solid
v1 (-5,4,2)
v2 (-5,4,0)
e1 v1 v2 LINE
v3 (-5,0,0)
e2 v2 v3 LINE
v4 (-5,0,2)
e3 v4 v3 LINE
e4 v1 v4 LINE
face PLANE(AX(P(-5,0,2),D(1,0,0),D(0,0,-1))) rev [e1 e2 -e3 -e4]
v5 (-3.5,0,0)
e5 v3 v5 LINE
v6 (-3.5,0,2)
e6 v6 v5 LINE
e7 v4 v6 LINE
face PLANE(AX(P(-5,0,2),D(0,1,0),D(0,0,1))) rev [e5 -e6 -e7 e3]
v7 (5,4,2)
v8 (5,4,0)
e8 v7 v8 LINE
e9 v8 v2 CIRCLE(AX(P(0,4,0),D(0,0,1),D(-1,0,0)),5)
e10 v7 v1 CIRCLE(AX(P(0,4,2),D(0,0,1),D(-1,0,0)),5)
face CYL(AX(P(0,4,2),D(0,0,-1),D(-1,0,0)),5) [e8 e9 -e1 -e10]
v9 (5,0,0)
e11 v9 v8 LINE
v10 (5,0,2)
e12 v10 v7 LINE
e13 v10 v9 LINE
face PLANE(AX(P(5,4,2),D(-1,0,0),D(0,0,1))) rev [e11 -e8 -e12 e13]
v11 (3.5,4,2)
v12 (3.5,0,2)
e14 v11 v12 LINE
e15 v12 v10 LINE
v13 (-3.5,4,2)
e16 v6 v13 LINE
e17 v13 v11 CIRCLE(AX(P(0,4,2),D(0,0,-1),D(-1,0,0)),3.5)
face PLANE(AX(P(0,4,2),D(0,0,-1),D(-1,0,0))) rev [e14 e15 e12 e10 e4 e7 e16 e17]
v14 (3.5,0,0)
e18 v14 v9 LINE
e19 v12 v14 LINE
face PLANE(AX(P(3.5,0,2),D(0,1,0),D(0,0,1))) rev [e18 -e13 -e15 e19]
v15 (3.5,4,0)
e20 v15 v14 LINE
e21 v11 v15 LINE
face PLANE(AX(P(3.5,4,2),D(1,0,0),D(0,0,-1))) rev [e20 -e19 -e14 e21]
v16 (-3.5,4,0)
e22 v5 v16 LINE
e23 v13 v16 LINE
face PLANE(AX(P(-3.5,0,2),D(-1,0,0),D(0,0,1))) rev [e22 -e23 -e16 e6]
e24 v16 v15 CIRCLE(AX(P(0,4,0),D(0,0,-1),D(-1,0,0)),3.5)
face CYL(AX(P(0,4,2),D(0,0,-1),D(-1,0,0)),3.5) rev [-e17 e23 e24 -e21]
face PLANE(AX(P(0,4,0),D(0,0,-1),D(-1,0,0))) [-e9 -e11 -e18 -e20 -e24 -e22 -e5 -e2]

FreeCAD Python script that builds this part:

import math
import FreeCAD as App
import Part
import Sketcher
from FreeCAD import Vector

doc = App.newDocument("Part")
body = doc.addObject("PartDesign::Body", "Body")

sketch1 = body.newObject("Sketcher::SketchObject", "Sketch")
sketch1.AttachmentSupport = (doc.getObject("XY_Plane"), [""])
sketch1.MapMode = "FlatFace"
sketch1.addGeometry([
    Part.LineSegment(Vector(-5, 4, 0), Vector(-5, 0, 0)),
    Part.LineSegment(Vector(-5, 0, 0), Vector(-3.5, 0, 0)),
    Part.LineSegment(Vector(-3.5, 0, 0), Vector(-3.5, 4, 0)),
    Part.ArcOfCircle(Part.Circle(Vector(0, 4, 0), Vector(0, 0, 1), 3.5), math.radians(0), math.radians(180)),
    Part.LineSegment(Vector(3.5, 4, 0), Vector(3.5, 0, 0)),
    Part.LineSegment(Vector(3.5, 0, 0), Vector(5, 0, 0)),
    Part.LineSegment(Vector(5, 0, 0), Vector(5, 4, 0)),
    Part.ArcOfCircle(Part.Circle(Vector(0, 4, 0), Vector(0, 0, 1), 5), math.radians(0), math.radians(180)),
], False)
sketch1.addConstraint([
    Sketcher.Constraint("Coincident", 0, 2, 1, 1),
    Sketcher.Constraint("Coincident", 1, 2, 2, 1),
    Sketcher.Constraint("Tangent", 2, 2, 3, 2),
    Sketcher.Constraint("Tangent", 3, 1, 4, 1),
    Sketcher.Constraint("Coincident", 4, 2, 5, 1),
    Sketcher.Constraint("Coincident", 5, 2, 6, 1),
    Sketcher.Constraint("Tangent", 6, 2, 7, 1),
    Sketcher.Constraint("Tangent", 7, 2, 0, 1),
    Sketcher.Constraint("Vertical", 0),
    Sketcher.Constraint("Horizontal", 1),
    Sketcher.Constraint("Vertical", 2),
    Sketcher.Constraint("Vertical", 4),
    Sketcher.Constraint("Horizontal", 5),
    Sketcher.Constraint("Vertical", 6),
    Sketcher.Constraint("Coincident", 7, 3, 3, 3),
    Sketcher.Constraint("Symmetric", 1, 2, 4, 2, -1, 1),
    Sketcher.Constraint("PointOnObject", 0, 2, -1),
    Sketcher.Constraint("Radius", 7, 5.0),
    Sketcher.Constraint("Radius", 3, 3.5),
    Sketcher.Constraint("DistanceY", 0, 2, 0, 1, 4.0),
])
pad1 = body.newObject("PartDesign::Pad", "Pad")
pad1.Profile = sketch1
pad1.Length = 2

doc.recompute()
